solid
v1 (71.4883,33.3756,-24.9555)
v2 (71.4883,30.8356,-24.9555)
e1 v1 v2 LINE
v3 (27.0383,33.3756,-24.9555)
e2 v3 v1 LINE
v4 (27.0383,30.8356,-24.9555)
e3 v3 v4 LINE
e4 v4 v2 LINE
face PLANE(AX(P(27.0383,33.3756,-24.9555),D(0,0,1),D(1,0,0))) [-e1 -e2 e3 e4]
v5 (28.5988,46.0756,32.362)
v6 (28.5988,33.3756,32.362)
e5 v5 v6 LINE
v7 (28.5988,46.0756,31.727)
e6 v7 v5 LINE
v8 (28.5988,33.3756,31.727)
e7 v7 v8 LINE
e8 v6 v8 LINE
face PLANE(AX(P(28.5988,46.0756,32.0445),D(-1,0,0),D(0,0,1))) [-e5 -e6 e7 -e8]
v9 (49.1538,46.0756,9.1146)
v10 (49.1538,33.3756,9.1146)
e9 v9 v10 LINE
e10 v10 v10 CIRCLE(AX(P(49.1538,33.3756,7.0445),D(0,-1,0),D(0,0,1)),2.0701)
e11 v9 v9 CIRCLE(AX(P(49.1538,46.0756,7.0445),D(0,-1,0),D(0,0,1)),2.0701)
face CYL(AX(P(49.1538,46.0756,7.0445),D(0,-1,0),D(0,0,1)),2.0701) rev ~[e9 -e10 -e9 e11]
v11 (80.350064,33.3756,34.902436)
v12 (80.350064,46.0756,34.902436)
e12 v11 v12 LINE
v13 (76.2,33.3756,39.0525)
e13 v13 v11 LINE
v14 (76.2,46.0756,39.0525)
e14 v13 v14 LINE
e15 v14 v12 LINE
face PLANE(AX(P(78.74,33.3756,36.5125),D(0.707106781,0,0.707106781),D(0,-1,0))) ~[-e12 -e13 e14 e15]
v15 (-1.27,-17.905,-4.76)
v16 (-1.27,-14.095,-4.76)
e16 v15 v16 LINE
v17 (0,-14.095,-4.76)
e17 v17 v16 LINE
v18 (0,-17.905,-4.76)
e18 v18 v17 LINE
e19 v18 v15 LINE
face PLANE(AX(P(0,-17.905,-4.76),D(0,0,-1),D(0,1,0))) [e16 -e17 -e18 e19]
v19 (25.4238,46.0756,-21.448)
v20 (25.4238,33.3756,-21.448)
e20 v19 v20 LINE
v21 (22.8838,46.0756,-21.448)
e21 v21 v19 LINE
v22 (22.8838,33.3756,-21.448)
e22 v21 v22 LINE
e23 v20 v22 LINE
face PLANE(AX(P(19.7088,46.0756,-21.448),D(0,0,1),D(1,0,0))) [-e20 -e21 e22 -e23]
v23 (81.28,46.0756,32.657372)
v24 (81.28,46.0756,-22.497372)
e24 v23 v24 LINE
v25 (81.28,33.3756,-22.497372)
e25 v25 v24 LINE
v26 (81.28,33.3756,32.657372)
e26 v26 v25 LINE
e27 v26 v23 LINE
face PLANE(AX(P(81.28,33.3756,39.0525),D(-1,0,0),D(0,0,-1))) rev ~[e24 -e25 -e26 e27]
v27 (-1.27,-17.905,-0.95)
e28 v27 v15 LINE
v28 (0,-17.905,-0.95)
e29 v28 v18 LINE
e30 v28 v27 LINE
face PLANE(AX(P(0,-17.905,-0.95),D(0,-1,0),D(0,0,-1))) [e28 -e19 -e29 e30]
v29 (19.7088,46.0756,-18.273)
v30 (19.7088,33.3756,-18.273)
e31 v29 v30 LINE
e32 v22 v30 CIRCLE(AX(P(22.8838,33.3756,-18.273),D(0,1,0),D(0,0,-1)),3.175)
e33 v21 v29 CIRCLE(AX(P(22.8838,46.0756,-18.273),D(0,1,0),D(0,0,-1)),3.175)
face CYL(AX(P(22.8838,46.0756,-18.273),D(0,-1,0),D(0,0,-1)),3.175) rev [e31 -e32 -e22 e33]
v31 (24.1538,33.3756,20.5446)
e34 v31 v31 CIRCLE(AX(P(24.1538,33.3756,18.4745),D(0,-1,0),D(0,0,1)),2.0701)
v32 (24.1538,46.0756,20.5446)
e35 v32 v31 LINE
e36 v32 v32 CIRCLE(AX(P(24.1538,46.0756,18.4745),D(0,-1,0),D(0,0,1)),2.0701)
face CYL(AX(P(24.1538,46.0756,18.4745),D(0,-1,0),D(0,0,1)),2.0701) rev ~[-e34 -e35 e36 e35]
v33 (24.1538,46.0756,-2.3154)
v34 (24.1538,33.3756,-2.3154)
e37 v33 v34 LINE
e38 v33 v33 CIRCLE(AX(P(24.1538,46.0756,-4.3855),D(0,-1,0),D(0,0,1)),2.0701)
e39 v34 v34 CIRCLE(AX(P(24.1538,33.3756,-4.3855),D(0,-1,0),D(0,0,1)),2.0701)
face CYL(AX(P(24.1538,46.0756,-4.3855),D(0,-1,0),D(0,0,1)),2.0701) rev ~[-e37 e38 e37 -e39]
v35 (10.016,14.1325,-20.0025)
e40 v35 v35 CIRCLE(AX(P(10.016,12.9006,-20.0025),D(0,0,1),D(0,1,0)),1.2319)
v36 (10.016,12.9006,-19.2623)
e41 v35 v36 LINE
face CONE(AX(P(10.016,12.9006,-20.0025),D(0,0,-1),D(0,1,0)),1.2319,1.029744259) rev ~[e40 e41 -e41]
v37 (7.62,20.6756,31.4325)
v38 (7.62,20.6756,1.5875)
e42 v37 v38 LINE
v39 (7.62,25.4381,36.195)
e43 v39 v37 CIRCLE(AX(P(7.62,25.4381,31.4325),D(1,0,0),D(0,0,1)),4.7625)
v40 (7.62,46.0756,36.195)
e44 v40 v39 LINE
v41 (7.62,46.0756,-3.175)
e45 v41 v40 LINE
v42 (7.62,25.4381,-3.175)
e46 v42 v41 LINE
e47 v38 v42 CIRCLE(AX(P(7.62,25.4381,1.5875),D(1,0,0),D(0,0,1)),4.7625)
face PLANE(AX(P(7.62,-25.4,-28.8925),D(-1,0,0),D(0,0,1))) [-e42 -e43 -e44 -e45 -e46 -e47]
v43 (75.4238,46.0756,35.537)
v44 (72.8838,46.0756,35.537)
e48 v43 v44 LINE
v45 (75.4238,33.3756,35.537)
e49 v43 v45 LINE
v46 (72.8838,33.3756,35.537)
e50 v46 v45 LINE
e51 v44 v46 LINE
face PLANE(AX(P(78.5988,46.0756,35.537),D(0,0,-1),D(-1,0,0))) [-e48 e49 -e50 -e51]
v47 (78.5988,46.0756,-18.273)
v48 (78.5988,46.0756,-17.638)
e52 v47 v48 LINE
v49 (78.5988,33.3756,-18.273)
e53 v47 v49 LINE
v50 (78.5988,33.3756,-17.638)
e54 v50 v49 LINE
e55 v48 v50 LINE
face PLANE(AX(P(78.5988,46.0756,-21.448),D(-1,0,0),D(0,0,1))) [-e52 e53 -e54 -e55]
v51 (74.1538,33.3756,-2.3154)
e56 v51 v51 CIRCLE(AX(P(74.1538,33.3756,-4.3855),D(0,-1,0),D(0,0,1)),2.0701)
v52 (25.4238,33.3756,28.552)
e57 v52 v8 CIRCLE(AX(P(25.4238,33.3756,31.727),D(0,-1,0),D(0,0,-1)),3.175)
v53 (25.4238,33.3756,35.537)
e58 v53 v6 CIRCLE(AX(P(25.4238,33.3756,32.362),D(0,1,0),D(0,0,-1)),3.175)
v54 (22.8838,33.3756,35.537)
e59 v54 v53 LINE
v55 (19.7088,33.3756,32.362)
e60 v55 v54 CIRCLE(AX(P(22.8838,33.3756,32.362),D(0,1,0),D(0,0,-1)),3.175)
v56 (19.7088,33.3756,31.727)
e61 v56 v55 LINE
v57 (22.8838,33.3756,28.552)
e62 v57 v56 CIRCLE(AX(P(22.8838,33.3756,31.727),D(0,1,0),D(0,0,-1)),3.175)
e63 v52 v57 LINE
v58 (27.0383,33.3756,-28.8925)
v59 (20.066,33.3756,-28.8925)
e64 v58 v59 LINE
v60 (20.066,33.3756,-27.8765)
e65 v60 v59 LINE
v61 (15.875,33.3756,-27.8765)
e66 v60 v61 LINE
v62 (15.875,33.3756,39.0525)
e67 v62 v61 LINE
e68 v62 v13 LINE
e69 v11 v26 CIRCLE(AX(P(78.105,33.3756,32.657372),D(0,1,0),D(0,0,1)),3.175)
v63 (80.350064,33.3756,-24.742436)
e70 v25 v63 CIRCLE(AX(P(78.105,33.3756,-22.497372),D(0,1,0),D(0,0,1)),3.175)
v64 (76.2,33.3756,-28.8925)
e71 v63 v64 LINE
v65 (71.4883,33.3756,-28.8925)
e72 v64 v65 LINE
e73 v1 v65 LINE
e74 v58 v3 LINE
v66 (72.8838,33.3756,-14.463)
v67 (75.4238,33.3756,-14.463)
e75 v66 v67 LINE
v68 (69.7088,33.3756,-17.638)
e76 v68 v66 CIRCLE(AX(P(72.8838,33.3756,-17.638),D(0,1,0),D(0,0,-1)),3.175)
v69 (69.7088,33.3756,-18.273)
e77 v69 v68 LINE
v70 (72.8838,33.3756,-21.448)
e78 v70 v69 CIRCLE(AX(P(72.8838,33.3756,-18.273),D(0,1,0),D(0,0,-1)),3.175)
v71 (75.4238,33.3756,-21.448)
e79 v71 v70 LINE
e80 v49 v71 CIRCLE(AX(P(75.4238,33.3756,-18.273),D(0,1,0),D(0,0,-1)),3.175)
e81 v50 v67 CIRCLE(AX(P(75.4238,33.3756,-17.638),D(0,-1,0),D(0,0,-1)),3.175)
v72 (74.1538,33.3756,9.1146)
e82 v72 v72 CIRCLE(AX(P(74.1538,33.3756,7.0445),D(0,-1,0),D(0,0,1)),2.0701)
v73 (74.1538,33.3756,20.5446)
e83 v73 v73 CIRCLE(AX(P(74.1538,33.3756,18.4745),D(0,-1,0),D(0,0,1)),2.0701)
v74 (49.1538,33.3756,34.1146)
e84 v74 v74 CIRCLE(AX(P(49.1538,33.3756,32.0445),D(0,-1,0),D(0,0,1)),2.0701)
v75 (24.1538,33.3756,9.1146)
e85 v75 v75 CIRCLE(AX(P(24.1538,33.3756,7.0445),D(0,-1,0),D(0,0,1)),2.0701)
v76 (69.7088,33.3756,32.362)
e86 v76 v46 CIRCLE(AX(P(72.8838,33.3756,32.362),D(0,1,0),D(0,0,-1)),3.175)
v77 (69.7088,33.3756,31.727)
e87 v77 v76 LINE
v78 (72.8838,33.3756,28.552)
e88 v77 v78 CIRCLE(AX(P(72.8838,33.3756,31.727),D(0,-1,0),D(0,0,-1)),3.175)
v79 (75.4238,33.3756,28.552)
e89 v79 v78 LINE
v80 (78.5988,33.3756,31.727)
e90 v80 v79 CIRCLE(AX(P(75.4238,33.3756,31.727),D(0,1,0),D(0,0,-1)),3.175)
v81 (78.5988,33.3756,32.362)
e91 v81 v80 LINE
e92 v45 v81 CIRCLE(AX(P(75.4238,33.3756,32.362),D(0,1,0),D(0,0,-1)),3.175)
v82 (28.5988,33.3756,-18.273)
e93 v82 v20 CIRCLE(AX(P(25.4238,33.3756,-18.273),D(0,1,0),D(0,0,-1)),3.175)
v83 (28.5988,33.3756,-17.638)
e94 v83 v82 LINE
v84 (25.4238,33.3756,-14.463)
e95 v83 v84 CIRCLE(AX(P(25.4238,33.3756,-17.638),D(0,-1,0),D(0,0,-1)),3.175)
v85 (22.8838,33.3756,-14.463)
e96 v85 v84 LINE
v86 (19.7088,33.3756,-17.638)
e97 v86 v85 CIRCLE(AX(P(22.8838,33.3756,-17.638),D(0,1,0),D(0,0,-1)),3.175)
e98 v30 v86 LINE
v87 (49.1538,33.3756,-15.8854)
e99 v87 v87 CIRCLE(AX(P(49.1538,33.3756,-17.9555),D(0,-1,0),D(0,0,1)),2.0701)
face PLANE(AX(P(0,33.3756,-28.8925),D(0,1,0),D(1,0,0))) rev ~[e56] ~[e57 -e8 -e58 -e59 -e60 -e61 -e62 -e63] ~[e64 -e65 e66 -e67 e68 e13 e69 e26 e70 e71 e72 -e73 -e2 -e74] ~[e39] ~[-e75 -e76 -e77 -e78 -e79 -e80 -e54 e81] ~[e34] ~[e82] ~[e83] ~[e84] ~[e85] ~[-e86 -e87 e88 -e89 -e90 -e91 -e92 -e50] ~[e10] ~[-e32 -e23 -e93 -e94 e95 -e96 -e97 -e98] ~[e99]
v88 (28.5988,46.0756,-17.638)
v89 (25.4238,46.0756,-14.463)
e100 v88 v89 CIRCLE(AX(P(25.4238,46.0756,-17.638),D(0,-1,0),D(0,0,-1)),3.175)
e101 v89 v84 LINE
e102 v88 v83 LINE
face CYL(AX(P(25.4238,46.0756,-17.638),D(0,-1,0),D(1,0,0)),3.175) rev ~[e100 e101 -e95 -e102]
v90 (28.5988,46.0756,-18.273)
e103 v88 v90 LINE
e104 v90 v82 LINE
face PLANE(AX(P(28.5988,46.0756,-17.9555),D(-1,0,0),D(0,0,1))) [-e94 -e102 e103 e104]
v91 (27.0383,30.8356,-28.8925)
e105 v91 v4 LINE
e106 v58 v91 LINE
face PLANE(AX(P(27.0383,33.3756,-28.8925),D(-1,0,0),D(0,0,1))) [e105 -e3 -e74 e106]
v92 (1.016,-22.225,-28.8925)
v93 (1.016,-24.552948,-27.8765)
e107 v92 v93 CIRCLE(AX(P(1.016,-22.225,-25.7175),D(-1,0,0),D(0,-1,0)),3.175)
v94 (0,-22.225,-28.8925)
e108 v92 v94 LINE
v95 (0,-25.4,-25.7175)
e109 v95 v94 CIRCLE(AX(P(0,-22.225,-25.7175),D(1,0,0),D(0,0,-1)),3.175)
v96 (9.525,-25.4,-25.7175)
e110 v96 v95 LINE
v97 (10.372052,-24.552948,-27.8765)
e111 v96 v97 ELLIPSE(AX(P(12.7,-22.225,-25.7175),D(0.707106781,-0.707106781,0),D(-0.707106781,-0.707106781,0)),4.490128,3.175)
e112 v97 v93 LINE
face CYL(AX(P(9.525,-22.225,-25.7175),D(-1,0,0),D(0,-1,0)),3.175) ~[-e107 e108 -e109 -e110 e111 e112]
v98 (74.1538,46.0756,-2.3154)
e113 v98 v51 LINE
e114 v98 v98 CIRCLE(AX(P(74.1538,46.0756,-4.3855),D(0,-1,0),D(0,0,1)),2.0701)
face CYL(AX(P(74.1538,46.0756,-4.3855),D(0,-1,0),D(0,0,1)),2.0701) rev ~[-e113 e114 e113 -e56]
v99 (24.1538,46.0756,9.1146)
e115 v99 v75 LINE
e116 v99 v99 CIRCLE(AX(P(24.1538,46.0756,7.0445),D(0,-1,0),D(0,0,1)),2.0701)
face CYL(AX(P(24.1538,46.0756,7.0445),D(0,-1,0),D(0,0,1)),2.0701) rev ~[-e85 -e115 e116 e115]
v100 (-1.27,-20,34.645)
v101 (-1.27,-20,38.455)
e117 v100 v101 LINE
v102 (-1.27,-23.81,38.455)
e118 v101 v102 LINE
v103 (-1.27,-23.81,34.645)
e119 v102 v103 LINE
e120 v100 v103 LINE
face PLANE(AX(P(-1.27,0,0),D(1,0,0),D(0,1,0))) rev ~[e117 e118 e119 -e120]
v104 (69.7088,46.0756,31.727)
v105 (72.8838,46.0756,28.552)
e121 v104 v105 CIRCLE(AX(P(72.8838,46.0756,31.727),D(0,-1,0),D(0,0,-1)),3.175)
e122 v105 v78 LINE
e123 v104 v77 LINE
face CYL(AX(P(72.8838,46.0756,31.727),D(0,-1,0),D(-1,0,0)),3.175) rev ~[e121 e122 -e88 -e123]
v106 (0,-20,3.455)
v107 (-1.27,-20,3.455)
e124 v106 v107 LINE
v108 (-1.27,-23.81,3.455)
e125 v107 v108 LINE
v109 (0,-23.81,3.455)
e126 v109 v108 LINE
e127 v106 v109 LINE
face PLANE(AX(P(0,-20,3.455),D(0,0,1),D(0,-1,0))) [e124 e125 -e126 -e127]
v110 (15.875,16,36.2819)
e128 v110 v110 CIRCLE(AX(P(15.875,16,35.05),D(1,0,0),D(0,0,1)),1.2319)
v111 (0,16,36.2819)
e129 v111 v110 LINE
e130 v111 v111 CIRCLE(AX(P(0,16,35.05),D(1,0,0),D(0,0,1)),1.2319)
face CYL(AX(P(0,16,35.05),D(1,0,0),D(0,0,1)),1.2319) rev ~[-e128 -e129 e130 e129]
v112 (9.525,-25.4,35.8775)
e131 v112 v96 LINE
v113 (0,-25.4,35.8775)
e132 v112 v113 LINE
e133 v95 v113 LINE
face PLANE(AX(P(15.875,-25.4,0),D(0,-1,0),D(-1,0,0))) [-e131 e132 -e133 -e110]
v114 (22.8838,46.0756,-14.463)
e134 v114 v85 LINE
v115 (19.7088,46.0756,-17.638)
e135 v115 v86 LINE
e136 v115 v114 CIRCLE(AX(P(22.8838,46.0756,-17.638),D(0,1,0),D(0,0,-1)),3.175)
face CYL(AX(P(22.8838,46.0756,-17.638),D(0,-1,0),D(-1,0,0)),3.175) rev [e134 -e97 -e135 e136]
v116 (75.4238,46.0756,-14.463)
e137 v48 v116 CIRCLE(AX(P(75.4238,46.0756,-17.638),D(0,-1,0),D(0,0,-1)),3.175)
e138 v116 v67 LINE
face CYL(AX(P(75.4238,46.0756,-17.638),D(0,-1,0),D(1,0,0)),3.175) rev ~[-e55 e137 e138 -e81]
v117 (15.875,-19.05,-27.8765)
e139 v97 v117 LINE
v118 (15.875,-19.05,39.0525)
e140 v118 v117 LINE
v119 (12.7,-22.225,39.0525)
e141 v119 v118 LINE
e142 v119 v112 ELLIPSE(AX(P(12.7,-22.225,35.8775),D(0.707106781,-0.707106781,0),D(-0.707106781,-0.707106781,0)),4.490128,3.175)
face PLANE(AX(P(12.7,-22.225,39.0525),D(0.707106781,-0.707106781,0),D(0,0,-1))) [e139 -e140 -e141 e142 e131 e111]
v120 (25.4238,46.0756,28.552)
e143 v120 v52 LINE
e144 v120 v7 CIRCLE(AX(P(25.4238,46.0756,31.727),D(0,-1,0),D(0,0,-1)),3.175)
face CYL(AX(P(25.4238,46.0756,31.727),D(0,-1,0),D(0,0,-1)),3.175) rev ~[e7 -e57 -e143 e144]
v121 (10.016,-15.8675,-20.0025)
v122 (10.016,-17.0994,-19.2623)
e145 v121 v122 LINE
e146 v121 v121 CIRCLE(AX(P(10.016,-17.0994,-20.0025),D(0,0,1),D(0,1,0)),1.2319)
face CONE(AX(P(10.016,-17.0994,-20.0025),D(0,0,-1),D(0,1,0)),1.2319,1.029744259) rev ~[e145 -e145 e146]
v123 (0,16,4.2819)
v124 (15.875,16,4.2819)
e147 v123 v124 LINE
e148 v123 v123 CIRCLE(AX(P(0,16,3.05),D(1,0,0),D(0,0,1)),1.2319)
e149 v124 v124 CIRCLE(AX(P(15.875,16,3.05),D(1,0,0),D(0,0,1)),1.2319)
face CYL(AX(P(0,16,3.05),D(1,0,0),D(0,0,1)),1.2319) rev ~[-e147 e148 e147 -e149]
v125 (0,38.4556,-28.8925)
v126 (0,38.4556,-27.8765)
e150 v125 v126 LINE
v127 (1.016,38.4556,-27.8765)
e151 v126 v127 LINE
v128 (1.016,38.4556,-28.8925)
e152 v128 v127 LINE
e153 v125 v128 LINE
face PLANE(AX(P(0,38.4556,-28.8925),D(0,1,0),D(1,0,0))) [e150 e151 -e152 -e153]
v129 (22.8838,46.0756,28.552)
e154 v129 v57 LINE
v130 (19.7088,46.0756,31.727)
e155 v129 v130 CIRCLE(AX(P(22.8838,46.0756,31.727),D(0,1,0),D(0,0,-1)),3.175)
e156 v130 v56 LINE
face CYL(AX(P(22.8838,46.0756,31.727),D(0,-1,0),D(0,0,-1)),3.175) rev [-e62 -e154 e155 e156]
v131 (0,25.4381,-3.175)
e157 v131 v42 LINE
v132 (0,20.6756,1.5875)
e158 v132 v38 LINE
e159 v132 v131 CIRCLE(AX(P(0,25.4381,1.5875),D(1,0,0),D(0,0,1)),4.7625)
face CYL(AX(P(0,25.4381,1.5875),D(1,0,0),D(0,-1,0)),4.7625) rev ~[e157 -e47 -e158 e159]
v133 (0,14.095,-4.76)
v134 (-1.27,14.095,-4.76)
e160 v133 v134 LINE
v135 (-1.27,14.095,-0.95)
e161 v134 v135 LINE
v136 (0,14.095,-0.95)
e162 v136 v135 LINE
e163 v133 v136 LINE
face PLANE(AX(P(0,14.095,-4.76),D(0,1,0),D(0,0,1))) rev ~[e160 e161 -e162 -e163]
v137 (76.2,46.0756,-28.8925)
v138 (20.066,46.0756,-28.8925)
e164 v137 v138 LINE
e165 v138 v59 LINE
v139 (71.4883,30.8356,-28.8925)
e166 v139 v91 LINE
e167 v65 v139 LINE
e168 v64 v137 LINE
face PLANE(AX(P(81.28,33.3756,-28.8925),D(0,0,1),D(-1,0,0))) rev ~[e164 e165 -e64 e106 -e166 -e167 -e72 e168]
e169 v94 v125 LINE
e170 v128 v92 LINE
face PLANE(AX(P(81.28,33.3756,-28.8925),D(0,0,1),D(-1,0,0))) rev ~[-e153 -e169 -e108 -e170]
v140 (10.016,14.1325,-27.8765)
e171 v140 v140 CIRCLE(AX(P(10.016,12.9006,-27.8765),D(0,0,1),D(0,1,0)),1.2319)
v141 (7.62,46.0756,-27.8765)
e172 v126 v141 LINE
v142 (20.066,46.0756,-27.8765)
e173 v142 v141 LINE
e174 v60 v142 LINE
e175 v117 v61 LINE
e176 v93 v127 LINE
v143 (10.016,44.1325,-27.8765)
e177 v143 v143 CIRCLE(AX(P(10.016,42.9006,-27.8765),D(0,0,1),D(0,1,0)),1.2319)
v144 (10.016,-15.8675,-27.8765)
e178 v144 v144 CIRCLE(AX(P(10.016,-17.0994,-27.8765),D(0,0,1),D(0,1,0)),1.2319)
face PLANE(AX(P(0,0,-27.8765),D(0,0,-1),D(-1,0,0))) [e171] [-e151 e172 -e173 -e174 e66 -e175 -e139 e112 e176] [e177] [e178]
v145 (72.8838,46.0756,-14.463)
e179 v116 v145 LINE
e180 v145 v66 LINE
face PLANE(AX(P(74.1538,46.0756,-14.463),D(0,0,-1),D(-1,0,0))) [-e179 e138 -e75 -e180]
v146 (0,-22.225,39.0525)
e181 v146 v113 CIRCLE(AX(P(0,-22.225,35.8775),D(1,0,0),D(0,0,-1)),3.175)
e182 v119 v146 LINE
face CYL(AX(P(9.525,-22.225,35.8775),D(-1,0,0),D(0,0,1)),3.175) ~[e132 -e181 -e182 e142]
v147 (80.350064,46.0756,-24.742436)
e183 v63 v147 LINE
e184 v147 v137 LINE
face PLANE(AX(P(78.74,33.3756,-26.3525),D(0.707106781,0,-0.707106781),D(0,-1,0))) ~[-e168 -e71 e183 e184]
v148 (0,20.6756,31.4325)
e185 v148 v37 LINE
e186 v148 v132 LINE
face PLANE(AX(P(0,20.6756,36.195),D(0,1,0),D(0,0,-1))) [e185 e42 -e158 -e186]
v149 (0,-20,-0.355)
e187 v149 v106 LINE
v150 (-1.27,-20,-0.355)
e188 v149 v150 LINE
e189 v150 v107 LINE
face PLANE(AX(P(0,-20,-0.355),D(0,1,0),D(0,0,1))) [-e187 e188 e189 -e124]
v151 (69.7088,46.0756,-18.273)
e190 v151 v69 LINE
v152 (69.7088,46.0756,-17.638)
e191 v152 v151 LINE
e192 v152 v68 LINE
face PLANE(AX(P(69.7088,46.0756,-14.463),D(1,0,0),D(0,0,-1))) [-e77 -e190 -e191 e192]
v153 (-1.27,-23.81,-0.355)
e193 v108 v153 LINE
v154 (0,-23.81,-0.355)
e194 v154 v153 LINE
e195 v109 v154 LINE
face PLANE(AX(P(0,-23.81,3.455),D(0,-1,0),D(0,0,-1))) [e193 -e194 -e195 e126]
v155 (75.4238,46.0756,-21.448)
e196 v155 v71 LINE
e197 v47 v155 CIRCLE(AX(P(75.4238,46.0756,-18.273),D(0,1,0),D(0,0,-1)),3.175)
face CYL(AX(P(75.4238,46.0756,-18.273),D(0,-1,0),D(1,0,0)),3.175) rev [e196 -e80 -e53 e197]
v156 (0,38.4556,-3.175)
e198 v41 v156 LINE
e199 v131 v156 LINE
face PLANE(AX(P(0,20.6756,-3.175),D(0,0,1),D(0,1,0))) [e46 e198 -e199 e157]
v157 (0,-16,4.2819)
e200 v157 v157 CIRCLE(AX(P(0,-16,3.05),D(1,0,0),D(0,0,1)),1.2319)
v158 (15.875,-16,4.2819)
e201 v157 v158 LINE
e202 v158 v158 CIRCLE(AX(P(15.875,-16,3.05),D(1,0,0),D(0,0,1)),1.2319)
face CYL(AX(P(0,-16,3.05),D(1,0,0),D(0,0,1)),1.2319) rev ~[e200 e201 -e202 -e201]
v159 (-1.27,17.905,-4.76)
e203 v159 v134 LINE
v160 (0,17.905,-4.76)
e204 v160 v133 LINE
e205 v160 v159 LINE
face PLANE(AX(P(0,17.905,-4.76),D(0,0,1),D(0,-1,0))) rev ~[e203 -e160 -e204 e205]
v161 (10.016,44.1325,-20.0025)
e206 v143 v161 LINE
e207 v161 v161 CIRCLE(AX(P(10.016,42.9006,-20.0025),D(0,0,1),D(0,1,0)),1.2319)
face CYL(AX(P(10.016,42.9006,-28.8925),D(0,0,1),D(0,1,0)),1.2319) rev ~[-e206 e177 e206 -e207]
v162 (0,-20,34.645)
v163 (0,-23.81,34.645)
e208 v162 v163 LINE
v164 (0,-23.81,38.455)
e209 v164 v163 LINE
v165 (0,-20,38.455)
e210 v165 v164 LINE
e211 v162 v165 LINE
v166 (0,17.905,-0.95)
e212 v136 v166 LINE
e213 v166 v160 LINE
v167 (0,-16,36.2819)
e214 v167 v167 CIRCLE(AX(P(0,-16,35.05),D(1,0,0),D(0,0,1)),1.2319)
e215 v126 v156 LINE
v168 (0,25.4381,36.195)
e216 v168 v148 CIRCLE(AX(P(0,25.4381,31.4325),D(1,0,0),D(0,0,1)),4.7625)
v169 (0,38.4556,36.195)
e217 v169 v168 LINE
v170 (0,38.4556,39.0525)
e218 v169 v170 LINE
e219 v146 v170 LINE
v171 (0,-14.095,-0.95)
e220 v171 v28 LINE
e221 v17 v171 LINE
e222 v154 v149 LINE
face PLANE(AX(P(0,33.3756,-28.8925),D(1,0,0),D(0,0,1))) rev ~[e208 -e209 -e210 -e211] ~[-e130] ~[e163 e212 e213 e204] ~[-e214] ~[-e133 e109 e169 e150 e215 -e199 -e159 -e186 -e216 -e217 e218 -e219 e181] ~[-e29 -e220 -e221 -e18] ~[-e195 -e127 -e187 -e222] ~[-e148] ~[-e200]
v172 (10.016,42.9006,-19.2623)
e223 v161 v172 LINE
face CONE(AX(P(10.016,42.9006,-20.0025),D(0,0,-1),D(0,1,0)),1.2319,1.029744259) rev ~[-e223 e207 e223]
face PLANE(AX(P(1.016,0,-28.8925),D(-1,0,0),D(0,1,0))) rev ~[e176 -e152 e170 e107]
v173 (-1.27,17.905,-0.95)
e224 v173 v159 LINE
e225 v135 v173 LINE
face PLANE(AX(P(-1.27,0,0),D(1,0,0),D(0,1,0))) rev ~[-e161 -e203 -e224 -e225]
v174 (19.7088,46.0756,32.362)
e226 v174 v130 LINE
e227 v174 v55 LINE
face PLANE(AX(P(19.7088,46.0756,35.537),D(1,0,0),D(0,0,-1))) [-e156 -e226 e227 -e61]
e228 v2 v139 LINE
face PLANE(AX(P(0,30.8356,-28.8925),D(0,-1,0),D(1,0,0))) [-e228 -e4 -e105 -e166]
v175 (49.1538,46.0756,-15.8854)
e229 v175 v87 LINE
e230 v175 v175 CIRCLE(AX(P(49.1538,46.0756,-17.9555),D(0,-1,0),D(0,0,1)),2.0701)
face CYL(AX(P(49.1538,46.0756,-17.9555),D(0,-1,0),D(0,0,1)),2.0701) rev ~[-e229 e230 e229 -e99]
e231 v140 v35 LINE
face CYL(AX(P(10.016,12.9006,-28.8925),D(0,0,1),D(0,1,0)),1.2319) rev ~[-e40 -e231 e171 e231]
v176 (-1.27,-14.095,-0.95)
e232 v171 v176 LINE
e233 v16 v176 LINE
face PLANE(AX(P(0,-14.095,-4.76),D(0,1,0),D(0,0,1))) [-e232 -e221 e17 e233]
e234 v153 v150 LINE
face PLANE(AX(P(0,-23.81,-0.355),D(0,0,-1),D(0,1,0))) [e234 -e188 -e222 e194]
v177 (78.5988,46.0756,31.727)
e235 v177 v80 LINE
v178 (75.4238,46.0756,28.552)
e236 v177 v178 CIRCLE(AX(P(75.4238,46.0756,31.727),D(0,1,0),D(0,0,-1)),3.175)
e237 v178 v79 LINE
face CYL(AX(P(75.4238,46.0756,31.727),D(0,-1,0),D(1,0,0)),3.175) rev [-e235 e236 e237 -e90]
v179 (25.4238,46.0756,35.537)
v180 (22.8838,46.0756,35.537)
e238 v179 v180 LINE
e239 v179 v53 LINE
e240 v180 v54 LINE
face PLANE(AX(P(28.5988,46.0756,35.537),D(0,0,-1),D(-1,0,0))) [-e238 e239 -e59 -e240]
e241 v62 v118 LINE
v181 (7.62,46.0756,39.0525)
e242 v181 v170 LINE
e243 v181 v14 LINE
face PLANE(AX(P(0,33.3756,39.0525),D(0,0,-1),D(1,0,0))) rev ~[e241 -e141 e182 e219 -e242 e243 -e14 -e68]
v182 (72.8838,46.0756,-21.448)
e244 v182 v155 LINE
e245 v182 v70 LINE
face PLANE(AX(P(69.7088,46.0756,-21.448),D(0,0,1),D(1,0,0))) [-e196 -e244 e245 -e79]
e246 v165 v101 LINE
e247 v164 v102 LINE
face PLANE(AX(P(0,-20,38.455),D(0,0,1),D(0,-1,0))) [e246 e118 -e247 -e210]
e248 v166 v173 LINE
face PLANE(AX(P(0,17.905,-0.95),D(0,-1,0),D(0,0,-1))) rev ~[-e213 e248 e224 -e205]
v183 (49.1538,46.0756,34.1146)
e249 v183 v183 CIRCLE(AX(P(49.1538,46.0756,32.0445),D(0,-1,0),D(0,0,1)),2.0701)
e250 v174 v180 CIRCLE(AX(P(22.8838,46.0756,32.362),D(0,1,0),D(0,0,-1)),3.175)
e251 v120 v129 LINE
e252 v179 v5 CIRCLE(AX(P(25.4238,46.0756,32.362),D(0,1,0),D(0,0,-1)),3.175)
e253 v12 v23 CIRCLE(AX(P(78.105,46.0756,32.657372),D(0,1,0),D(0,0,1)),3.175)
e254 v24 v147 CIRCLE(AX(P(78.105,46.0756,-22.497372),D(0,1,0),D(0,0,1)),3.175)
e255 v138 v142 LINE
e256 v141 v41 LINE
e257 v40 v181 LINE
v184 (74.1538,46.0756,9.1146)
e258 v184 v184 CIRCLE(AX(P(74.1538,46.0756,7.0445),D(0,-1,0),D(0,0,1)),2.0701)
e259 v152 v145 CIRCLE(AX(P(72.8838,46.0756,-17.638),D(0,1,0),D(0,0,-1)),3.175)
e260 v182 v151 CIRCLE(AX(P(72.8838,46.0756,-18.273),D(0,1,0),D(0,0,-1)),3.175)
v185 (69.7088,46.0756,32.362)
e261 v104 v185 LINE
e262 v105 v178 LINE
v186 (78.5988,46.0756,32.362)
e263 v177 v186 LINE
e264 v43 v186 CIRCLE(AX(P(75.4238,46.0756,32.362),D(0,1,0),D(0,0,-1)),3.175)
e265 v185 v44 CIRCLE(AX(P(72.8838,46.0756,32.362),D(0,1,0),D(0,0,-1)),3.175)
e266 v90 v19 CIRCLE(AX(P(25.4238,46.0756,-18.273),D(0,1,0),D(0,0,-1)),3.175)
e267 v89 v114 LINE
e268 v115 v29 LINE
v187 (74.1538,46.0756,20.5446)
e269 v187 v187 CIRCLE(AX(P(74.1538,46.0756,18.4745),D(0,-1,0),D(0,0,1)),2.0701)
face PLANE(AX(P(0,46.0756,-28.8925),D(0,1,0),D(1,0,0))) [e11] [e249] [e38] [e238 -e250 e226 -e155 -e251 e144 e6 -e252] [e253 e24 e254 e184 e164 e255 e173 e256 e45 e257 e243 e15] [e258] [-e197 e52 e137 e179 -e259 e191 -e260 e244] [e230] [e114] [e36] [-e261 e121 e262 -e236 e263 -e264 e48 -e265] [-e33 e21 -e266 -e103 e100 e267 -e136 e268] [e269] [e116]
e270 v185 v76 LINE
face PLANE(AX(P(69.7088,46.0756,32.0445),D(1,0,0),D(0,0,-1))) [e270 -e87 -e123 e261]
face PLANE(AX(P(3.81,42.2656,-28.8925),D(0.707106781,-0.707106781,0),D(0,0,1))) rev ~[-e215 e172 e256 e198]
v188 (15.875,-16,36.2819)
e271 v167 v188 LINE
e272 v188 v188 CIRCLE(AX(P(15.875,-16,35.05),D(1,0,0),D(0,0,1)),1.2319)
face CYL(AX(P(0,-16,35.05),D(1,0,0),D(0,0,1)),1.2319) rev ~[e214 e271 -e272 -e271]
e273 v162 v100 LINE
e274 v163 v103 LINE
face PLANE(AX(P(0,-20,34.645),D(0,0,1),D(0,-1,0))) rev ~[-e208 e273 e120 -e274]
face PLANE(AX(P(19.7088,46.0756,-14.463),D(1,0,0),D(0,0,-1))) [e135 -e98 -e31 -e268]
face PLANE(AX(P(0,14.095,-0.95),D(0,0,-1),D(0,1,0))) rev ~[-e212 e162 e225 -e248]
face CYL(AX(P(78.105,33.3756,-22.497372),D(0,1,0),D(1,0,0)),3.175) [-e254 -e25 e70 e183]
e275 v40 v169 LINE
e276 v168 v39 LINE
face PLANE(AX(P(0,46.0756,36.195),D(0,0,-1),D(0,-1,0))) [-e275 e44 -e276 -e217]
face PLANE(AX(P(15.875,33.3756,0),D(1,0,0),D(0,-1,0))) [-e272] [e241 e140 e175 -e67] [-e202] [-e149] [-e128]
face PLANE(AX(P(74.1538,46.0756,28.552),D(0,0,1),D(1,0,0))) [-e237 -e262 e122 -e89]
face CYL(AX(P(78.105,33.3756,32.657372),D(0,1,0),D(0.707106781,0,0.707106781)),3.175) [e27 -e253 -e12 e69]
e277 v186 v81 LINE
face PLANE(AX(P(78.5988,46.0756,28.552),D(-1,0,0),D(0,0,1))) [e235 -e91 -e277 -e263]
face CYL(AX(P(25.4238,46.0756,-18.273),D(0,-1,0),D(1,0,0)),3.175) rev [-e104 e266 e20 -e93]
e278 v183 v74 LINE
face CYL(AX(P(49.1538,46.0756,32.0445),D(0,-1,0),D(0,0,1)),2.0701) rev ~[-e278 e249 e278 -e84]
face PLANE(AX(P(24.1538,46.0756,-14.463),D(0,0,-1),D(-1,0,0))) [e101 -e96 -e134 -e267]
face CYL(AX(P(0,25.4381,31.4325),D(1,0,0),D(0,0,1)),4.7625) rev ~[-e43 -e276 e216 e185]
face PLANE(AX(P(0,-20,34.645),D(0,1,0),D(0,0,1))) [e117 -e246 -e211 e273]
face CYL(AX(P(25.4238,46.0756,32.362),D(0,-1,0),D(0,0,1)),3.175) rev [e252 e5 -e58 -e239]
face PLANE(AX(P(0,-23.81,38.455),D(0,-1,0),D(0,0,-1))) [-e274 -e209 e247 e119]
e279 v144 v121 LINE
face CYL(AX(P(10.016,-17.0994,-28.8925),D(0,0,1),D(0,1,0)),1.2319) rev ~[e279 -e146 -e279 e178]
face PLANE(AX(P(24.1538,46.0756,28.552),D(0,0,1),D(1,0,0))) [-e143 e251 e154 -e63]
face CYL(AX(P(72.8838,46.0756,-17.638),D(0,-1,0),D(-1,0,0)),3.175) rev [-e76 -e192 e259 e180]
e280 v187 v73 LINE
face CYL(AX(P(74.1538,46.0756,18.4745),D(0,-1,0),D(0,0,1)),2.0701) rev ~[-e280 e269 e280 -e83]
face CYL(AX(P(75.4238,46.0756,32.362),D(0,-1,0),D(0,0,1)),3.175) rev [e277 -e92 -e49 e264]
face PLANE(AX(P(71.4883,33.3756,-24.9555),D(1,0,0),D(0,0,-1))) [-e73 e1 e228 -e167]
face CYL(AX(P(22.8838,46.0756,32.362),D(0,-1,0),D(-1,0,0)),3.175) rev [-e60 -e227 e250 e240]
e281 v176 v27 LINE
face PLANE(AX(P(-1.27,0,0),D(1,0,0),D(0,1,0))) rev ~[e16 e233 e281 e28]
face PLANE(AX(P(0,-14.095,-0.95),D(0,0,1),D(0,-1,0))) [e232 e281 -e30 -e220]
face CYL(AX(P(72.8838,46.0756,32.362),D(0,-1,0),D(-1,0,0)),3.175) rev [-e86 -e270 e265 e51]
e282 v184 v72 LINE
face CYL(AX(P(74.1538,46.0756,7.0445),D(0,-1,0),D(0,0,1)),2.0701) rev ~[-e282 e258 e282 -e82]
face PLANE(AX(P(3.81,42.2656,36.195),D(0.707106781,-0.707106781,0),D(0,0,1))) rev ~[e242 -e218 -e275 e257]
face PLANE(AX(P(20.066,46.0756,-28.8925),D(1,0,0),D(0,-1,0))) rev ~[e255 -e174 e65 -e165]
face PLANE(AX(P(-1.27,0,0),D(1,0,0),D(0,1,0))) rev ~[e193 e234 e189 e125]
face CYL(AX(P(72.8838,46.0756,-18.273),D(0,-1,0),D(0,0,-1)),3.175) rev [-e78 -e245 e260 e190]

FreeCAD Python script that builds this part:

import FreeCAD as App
import Part
import Sketcher

V = App.Vector
Q = App.Units.Quantity


def edges_at(feature, points):
    """Names of the edges that pass closest to the given points."""
    edges = feature.Shape.Edges
    near = lambda p: min(range(len(edges)), key=lambda i: edges[i].distToShape(Part.Vertex(*p))[0])
    return sorted({f"Edge{near(p) + 1}" for p in points})


def add_polygon(sketch, points):
    """Adds a closed chain of lines whose ends are joined by coincident constraints."""
    first, n = sketch.GeometryCount, len(points)
    for a, b in zip(points, points[1:] + points[:1]):
        sketch.addGeometry(Part.LineSegment(App.Vector(*a, 0), App.Vector(*b, 0)), False)
    for i in range(n):
        sketch.addConstraint(Sketcher.Constraint("Coincident", first + i, 2, first + (i + 1) % n, 1))

doc = App.newDocument("Part")
body = doc.addObject("PartDesign::Body", "Body")

sketch1 = body.newObject("Sketcher::SketchObject", "Sketch")
sketch1.AttachmentSupport = (doc.getObject("XY_Plane"), [""])
sketch1.MapMode = "FlatFace"
add_polygon(sketch1, [(16, 33), (0, 33), (0, -25), (16, -25)])
sketch1.addConstraint([
    Sketcher.Constraint("Horizontal", 0),
    Sketcher.Constraint("Vertical", 1),
    Sketcher.Constraint("Horizontal", 2),
    Sketcher.Constraint("Vertical", 3),
    Sketcher.Constraint("PointOnObject", 0, 2, -2),
    Sketcher.Constraint("DistanceY", 1, 2, -1, 1, Q("1 in")),
    Sketcher.Constraint("DistanceX", 0, 2, 0, 1, Q("0.625 in")),
    Sketcher.Constraint("DistanceY", -1, 1, 0, 2, Q("1.314 in")),
])
pad1 = body.newObject("PartDesign::Pad", "Pad")
pad1.Profile = sketch1
pad1.Type = "TwoLengths"
pad1.Length = Q("1.5375 in")
pad1.Length2 = Q("1.1375 in")

sketch2 = body.newObject("Sketcher::SketchObject", "Sketch001")
sketch2.AttachmentSupport = (doc.getObject("XZ_Plane"), [""])
sketch2.MapMode = "FlatFace"
sketch2.AttachmentOffset = App.Placement(V(0, 0, -1.314 * 25.4), App.Rotation())
add_polygon(sketch2, [(81, -29), (0, -29), (0, 39), (81, 39)])
sketch2.addConstraint([
    Sketcher.Constraint("Horizontal", 0),
    Sketcher.Constraint("Vertical", 1),
    Sketcher.Constraint("Horizontal", 2),
    Sketcher.Constraint("Vertical", 3),
    Sketcher.Constraint("PointOnObject", 0, 2, -2),
    Sketcher.Constraint("DistanceX", 0, 2, 0, 1, Q("3.2 in")),
    Sketcher.Constraint("DistanceY", 1, 1, 1, 2, Q("2.675 in")),
    Sketcher.Constraint("DistanceY", 0, 2, -1, 1, Q("1.1375 in")),
])
pad2 = body.newObject("PartDesign::Pad", "Pad001")
pad2.Profile = sketch2
pad2.Length = Q("0.5 in")
pad2.Reversed = True

sketch3 = body.newObject("Sketcher::SketchObject", "Sketch002")
sketch3.AttachmentSupport = (doc.getObject("XZ_Plane"), [""])
sketch3.MapMode = "FlatFace"
sketch3.AttachmentOffset = App.Placement(V(0, 0, -1.314 * 25.4), App.Rotation())
add_polygon(sketch3, [(27, -28.9), (71.5, -28.9), (71.5, -25), (27, -25)])
sketch3.addConstraint([
    Sketcher.Constraint("Horizontal", 0),
    Sketcher.Constraint("Vertical", 1),
    Sketcher.Constraint("Horizontal", 2),
    Sketcher.Constraint("Vertical", 3),
    Sketcher.Constraint("DistanceX", 0, 1, 0, 2, Q("1.75 in")),
    Sketcher.Constraint("DistanceY", 1, 2, -1, 1, Q("0.9825 in")),
    Sketcher.Constraint("DistanceY", 1, 1, 1, 2, Q("0.155 in")),
    Sketcher.Constraint("DistanceX", -1, 1, 0, 2, Q("2.8145 in")),
])
pad3 = body.newObject("PartDesign::Pad", "Pad002")
pad3.Profile = sketch3
pad3.Length = Q("0.1 in")

sketch4 = body.newObject("Sketcher::SketchObject", "Sketch003")
sketch4.AttachmentSupport = (doc.getObject("XZ_Plane"), [""])
sketch4.MapMode = "FlatFace"
sketch4.AttachmentOffset = App.Placement(V(0, 0, -1.814 * 25.4), App.Rotation())
add_polygon(sketch4, [(79, 29), (70, 29), (70, 36), (79, 36)])
add_polygon(sketch4, [(29, 36), (29, 29), (20, 29), (20, 36)])
add_polygon(sketch4, [(70, -14), (79, -14), (79, -21), (70, -21)])
add_polygon(sketch4, [(20, -14), (29, -14), (29, -21), (20, -21)])
sketch4.addConstraint([
    Sketcher.Constraint("Horizontal", 0),
    Sketcher.Constraint("Vertical", 1),
    Sketcher.Constraint("Horizontal", 2),
    Sketcher.Constraint("Vertical", 3),
    Sketcher.Constraint("Vertical", 4),
    Sketcher.Constraint("Horizontal", 5),
    Sketcher.Constraint("Vertical", 6),
    Sketcher.Constraint("Horizontal", 7),
    Sketcher.Constraint("Horizontal", 8),
    Sketcher.Constraint("Vertical", 9),
    Sketcher.Constraint("Horizontal", 10),
    Sketcher.Constraint("Vertical", 11),
    Sketcher.Constraint("Horizontal", 12),
    Sketcher.Constraint("Vertical", 13),
    Sketcher.Constraint("Horizontal", 14),
    Sketcher.Constraint("Vertical", 15),
    Sketcher.Constraint("Horizontal", 3, 2, 4, 2),
    Sketcher.Constraint("Horizontal", 2, 2, 6, 2),
    Sketcher.Constraint("Horizontal", 11, 2, 12, 2),
    Sketcher.Constraint("Horizontal", 10, 2, 13, 2),
    Sketcher.Constraint("Vertical", 3, 2, 8, 2),
    Sketcher.Constraint("Vertical", 1, 2, 10, 2),
    Sketcher.Constraint("Vertical", 7, 2, 12, 2),
    Sketcher.Constraint("Vertical", 6, 2, 14, 2),
    Sketcher.Constraint("Equal", 2, 5),
    Sketcher.Constraint("Equal", 6, 9),
    Sketcher.Constraint("DistanceX", 0, 2, 0, 1, Q("0.35 in")),
    Sketcher.Constraint("DistanceY", 1, 1, 1, 2, Q("0.275 in")),
    Sketcher.Constraint("DistanceX", 4, 2, 3, 2, Q("1.9685 in")),
    Sketcher.Constraint("DistanceY", 8, 2, 2, 2, Q("1.9685 in")),
    Sketcher.Constraint("DistanceY", -1, 1, 0, 2, Q("1.1241 in")),
    Sketcher.Constraint("DistanceX", -1, 1, 0, 2, 69.7088),
])
pocket1 = body.newObject("PartDesign::Pocket", "Pocket")
pocket1.Profile = sketch4
pocket1.Type = "UpToFirst"
pocket1.Reversed = True
doc.recompute()

fillet = body.newObject("PartDesign::Fillet", "Fillet")
fillet.Base = (pocket1, edges_at(pocket1, [
    (28.599, 39.726, -14.463),
    (28.599, 39.726, -21.448),
    (19.709, 39.726, -21.448),
    (19.709, 39.726, -14.463),
    (28.599, 39.726, 28.552),
    (28.599, 39.726, 35.537),
    (19.709, 39.726, 35.537),
    (19.709, 39.726, 28.552),
    (69.709, 39.726, 35.537),
    (69.709, 39.726, 28.552),
    (78.599, 39.726, 28.552),
    (78.599, 39.726, 35.537),
    (69.709, 39.726, -14.463),
    (69.709, 39.726, -21.448),
    (78.599, 39.726, -21.448),
    (78.599, 39.726, -14.463),
]))
fillet.Radius = Q("0.125 in")

sketch5 = body.newObject("Sketcher::SketchObject", "Sketch004")
sketch5.AttachmentSupport = (doc.getObject("YZ_Plane"), [""])
sketch5.MapMode = "FlatFace"
sketch5.addGeometry([
    Part.Circle(V(16, 3, 0), V(0, 0, 1), 1.2),
    Part.Circle(V(16, 35, 0), V(0, 0, 1), 1.2),
    Part.Circle(V(-16, 35, 0), V(0, 0, 1), 1.2),
    Part.Circle(V(-16, 3, 0), V(0, 0, 1), 1.2),
], False)
sketch5.addConstraint([
    Sketcher.Constraint("Equal", 0, 1),
    Sketcher.Constraint("Equal", 1, 2),
    Sketcher.Constraint("Equal", 2, 3),
    Sketcher.Constraint("Symmetric", 1, 3, 2, 3, -2),
    Sketcher.Constraint("Symmetric", 0, 3, 3, 3, -2),
    Sketcher.Constraint("Vertical", 0, 3, 1, 3),
    Sketcher.Constraint("Diameter", 0, Q("0.097 in")),
    Sketcher.Constraint("DistanceX", -1, 1, 0, 3, 16.0),
    Sketcher.Constraint("DistanceY", -1, 1, 0, 3, 3.05),
    Sketcher.Constraint("DistanceY", -1, 1, 1, 3, 35.05),
])
doc.recompute()
hole = body.newObject("PartDesign::Hole", "Hole")
hole.Profile = sketch5
hole.ThreadType = "None"
hole.Diameter = Q("0.097 in")
hole.DepthType = "ThroughAll"
hole.Reversed = True

sketch6 = body.newObject("Sketcher::SketchObject", "Sketch005")
sketch6.AttachmentSupport = (doc.getObject("YZ_Plane"), [""])
sketch6.MapMode = "FlatFace"
add_polygon(sketch6, [(14.1, -4.8), (17.9, -4.8), (17.9, -0.9), (14.1, -0.9)])
add_polygon(sketch6, [(-20, 34.6), (-20, 38.5), (-23.8, 38.5), (-23.8, 34.6)])
add_polygon(sketch6, [(-23.8, 3.5), (-23.8, -0.4), (-20, -0.4), (-20, 3.5)])
add_polygon(sketch6, [(-14.1, -4.8), (-14.1, -0.9), (-17.9, -0.9), (-17.9, -4.8)])
sketch6.addConstraint([
    Sketcher.Constraint("Horizontal", 0),
    Sketcher.Constraint("Vertical", 1),
    Sketcher.Constraint("Horizontal", 2),
    Sketcher.Constraint("Vertical", 3),
    Sketcher.Constraint("Vertical", 4),
    Sketcher.Constraint("Horizontal", 5),
    Sketcher.Constraint("Vertical", 6),
    Sketcher.Constraint("Horizontal", 7),
    Sketcher.Constraint("Vertical", 8),
    Sketcher.Constraint("Horizontal", 9),
    Sketcher.Constraint("Vertical", 10),
    Sketcher.Constraint("Horizontal", 11),
    Sketcher.Constraint("Vertical", 12),
    Sketcher.Constraint("Horizontal", 13),
    Sketcher.Constraint("Vertical", 14),
    Sketcher.Constraint("Horizontal", 15),
    Sketcher.Constraint("Symmetric", 2, 2, 12, 2, -2),
    Sketcher.Constraint("Symmetric", 0, 2, 14, 2, -2),
    Sketcher.Constraint("Vertical", 6, 2, 8, 2),
    Sketcher.Constraint("Vertical", 7, 2, 9, 2),
    Sketcher.Constraint("Equal", 2, 5),
    Sketcher.Constraint("Equal", 15, 1),
    Sketcher.Constraint("Equal", 3, 4),
    Sketcher.Constraint("Equal", 6, 8),
    Sketcher.Constraint("DistanceX", 0, 1, 0, 2, Q("0.15 in")),
    Sketcher.Constraint("DistanceX", 4, 2, -1, 1, Q("0.7874 in")),
    Sketcher.Constraint("DistanceY", 2, 2, 4, 2, 39.405),
    Sketcher.Constraint("DistanceY", 8, 2, 6, 2, 35.0),
    Sketcher.Constraint("DistanceX", 9, 2, 13, 2, 2.095),
    Sketcher.Constraint("DistanceY", 0, 2, -1, 1, Q("0.1874 in")),
])
pad4 = body.newObject("PartDesign::Pad", "Pad003")
pad4.Profile = sketch6
pad4.Length = Q("0.05 in")
pad4.Reversed = True

sketch7 = body.newObject("Sketcher::SketchObject", "Sketch006")
sketch7.AttachmentSupport = (doc.getObject("YZ_Plane"), [""])
sketch7.MapMode = "FlatFace"
add_polygon(sketch7, [(46, 36), (46, -3), (21, -3), (21, 36)])
sketch7.addConstraint([
    Sketcher.Constraint("Vertical", 0),
    Sketcher.Constraint("Horizontal", 1),
    Sketcher.Constraint("Vertical", 2),
    Sketcher.Constraint("Horizontal", 3),
    Sketcher.Constraint("DistanceX", 1, 2, 1, 1, Q("1 in")),
    Sketcher.Constraint("DistanceY", 0, 2, -1, 1, Q("0.125 in")),
    Sketcher.Constraint("DistanceY", -1, 1, 2, 2, Q("1.425 in")),
    Sketcher.Constraint("DistanceX", -1, 1, 0, 2, Q("1.814 in")),
])
pocket2 = body.newObject("PartDesign::Pocket", "Pocket001")
pocket2.Profile = sketch7
pocket2.Length = Q("0.3 in")
pocket2.Reversed = True
doc.recompute()

chamfer = body.newObject("PartDesign::Chamfer", "Chamfer")
chamfer.Base = (pocket2, edges_at(pocket2, [(0, 46.076, -16.034), (0, 46.076, 37.624)]))
chamfer.Size = Q("0.3 in")
doc.recompute()

fillet2 = body.newObject("PartDesign::Fillet", "Fillet001")
fillet2.Base = (chamfer, edges_at(chamfer, [(3.81, 20.676, 36.195), (3.81, 20.676, -3.175)]))
fillet2.Radius = Q("0.1875 in")
doc.recompute()

chamfer2 = body.newObject("PartDesign::Chamfer", "Chamfer001")
chamfer2.Base = (fillet2, edges_at(fillet2, [(15.875, -25.4, 5.08)]))
chamfer2.Size = Q("0.25 in")

sketch8 = body.newObject("Sketcher::SketchObject", "Sketch007")
sketch8.AttachmentSupport = (doc.getObject("XZ_Plane"), [""])
sketch8.MapMode = "FlatFace"
sketch8.AttachmentOffset = App.Placement(V(0, 0, -1.814 * 25.4), App.Rotation())
sketch8.addGeometry([
    Part.Circle(V(74.2, 18.5, 0), V(0, 0, 1), 2.1),
    Part.Circle(V(74.2, 7, 0), V(0, 0, 1), 2.1),
    Part.Circle(V(74.2, -4.4, 0), V(0, 0, 1), 2.1),
    Part.Circle(V(49.2, -18, 0), V(0, 0, 1), 2.1),
    Part.Circle(V(49.2, 7, 0), V(0, 0, 1), 2.1),
    Part.Circle(V(49.2, 32, 0), V(0, 0, 1), 2.1),
    Part.Circle(V(24.2, 18.5, 0), V(0, 0, 1), 2.1),
    Part.Circle(V(24.2, 7, 0), V(0, 0, 1), 2.1),
    Part.Circle(V(24.2, -4.4, 0), V(0, 0, 1), 2.1),
], False)
sketch8.addConstraint([
    Sketcher.Constraint("Equal", 0, 1),
    Sketcher.Constraint("Equal", 1, 2),
    Sketcher.Constraint("Equal", 2, 3),
    Sketcher.Constraint("Equal", 3, 4),
    Sketcher.Constraint("Equal", 4, 5),
    Sketcher.Constraint("Equal", 5, 6),
    Sketcher.Constraint("Equal", 6, 7),
    Sketcher.Constraint("Equal", 7, 8),
    Sketcher.Constraint("Horizontal", 1, 3, 4, 3),
    Sketcher.Constraint("Horizontal", 0, 3, 6, 3),
    Sketcher.Constraint("Horizontal", 4, 3, 7, 3),
    Sketcher.Constraint("Horizontal", 2, 3, 8, 3),
    Sketcher.Constraint("Vertical", 0, 3, 1, 3),
    Sketcher.Constraint("Vertical", 1, 3, 2, 3),
    Sketcher.Constraint("Vertical", 3, 3, 4, 3),
    Sketcher.Constraint("Vertical", 4, 3, 5, 3),
    Sketcher.Constraint("Vertical", 6, 3, 7, 3),
    Sketcher.Constraint("Vertical", 7, 3, 8, 3),
    Sketcher.Constraint("Diameter", 0, Q("0.163 in")),
    Sketcher.Constraint("DistanceY", 2, 3, 0, 3, Q("0.9 in")),
    Sketcher.Constraint("DistanceY", 1, 3, 0, 3, Q("0.45 in")),
    Sketcher.Constraint("DistanceX", -1, 1, 3, 3, Q("1.9352 in")),
    Sketcher.Constraint("DistanceY", 3, 3, -1, 1, Q("0.7069 in")),
    Sketcher.Constraint("DistanceY", -1, 1, 5, 3, Q("1.2616 in")),
    Sketcher.Constraint("DistanceX", 6, 3, 0, 3, Q("1.9685 in")),
    Sketcher.Constraint("DistanceX", -1, 1, 0, 3, 74.1538),
    Sketcher.Constraint("DistanceY", -1, 1, 0, 3, 18.4745),
])
doc.recompute()
hole2 = body.newObject("PartDesign::Hole", "Hole001")
hole2.Profile = sketch8
hole2.ThreadType = "None"
hole2.Diameter = Q("0.163 in")
hole2.DepthType = "ThroughAll"
hole2.Reversed = True
doc.recompute()

fillet3 = body.newObject("PartDesign::Fillet", "Fillet002")
fillet3.Base = (hole2, edges_at(hole2, [(4.763, -25.4, 39.053), (4.763, -25.4, -28.892)]))
fillet3.Radius = Q("0.125 in")
doc.recompute()

chamfer3 = body.newObject("PartDesign::Chamfer", "Chamfer002")
chamfer3.Base = (fillet3, edges_at(fillet3, [(81.28, 39.726, -28.892), (81.28, 39.726, 39.053)]))
chamfer3.Size = Q("0.2 in")
doc.recompute()

fillet4 = body.newObject("PartDesign::Fillet", "Fillet003")
fillet4.Base = (chamfer3, edges_at(chamfer3, [(81.28, 39.726, 33.972), (81.28, 39.726, -23.812)]))
fillet4.Radius = Q("0.125 in")

sketch9 = body.newObject("Sketcher::SketchObject", "Sketch008")
sketch9.AttachmentSupport = (doc.getObject("XY_Plane"), [""])
sketch9.MapMode = "FlatFace"
sketch9.AttachmentOffset = App.Placement(V(0, 0, -1.1375 * 25.4), App.Rotation())
add_polygon(sketch9, [(1, 38.5), (0, 38.5), (1, 39.5), (1, 46.1), (20.1, 46.1), (20.1, -25.4), (1, -25.4)])
sketch9.addConstraint([
    Sketcher.Constraint("Horizontal", 0),
    Sketcher.Constraint("Vertical", 2),
    Sketcher.Constraint("Horizontal", 3),
    Sketcher.Constraint("Vertical", 4),
    Sketcher.Constraint("Horizontal", 5),
    Sketcher.Constraint("Vertical", 6),
    Sketcher.Constraint("PointOnObject", 0, 2, -2),
    Sketcher.Constraint("Vertical", 2, 2, 5, 2),
    Sketcher.Constraint("DistanceX", 0, 2, 0, 1, Q("0.04 in")),
    Sketcher.Constraint("DistanceX", 3, 1, 3, 2, Q("0.75 in")),
    Sketcher.Constraint("DistanceY", 4, 2, 4, 1, Q("2.814 in")),
    Sketcher.Constraint("DistanceY", 0, 2, 1, 2, Q("0.04 in")),
    Sketcher.Constraint("DistanceY", 4, 2, -1, 1, Q("1 in")),
    Sketcher.Constraint("DistanceY", 2, 1, 2, 2, Q("0.26 in")),
])
pocket3 = body.newObject("PartDesign::Pocket", "Pocket002")
pocket3.Profile = sketch9
pocket3.Length = Q("0.04 in")
pocket3.Reversed = True

sketch10 = body.newObject("Sketcher::SketchObject", "Sketch009")
sketch10.AttachmentSupport = (doc.getObject("XY_Plane"), [""])
sketch10.MapMode = "FlatFace"
sketch10.AttachmentOffset = App.Placement(V(0, 0, -1.1375 * 25.4), App.Rotation())
sketch10.addGeometry([
    Part.Circle(V(10, 42.9, 0), V(0, 0, 1), 1.2),
    Part.Circle(V(10, 12.9, 0), V(0, 0, 1), 1.2),
    Part.Circle(V(10, -17.1, 0), V(0, 0, 1), 1.2),
], False)
sketch10.addConstraint([
    Sketcher.Constraint("Equal", 0, 1),
    Sketcher.Constraint("Equal", 1, 2),
    Sketcher.Constraint("Vertical", 0, 3, 1, 3),
    Sketcher.Constraint("Vertical", 1, 3, 2, 3),
    Sketcher.Constraint("Diameter", 0, Q("0.097 in")),
    Sketcher.Constraint("DistanceY", -1, 1, 0, 3, Q("1.689 in")),
    Sketcher.Constraint("DistanceY", -1, 1, 1, 3, Q("0.5079 in")),
    Sketcher.Constraint("DistanceY", 2, 3, -1, 1, Q("0.6732 in")),
    Sketcher.Constraint("DistanceX", -1, 1, 0, 3, 10.016),
])
doc.recompute()
hole3 = body.newObject("PartDesign::Hole", "Hole002")
hole3.Profile = sketch10
hole3.ThreadType = "None"
hole3.Diameter = Q("0.097 in")
hole3.DepthType = "Dimension"
hole3.Depth = Q("0.35 in")
hole3.DrillPoint = "Angled"
hole3.DrillPointAngle = 118
hole3.Reversed = True

doc.recompute()
